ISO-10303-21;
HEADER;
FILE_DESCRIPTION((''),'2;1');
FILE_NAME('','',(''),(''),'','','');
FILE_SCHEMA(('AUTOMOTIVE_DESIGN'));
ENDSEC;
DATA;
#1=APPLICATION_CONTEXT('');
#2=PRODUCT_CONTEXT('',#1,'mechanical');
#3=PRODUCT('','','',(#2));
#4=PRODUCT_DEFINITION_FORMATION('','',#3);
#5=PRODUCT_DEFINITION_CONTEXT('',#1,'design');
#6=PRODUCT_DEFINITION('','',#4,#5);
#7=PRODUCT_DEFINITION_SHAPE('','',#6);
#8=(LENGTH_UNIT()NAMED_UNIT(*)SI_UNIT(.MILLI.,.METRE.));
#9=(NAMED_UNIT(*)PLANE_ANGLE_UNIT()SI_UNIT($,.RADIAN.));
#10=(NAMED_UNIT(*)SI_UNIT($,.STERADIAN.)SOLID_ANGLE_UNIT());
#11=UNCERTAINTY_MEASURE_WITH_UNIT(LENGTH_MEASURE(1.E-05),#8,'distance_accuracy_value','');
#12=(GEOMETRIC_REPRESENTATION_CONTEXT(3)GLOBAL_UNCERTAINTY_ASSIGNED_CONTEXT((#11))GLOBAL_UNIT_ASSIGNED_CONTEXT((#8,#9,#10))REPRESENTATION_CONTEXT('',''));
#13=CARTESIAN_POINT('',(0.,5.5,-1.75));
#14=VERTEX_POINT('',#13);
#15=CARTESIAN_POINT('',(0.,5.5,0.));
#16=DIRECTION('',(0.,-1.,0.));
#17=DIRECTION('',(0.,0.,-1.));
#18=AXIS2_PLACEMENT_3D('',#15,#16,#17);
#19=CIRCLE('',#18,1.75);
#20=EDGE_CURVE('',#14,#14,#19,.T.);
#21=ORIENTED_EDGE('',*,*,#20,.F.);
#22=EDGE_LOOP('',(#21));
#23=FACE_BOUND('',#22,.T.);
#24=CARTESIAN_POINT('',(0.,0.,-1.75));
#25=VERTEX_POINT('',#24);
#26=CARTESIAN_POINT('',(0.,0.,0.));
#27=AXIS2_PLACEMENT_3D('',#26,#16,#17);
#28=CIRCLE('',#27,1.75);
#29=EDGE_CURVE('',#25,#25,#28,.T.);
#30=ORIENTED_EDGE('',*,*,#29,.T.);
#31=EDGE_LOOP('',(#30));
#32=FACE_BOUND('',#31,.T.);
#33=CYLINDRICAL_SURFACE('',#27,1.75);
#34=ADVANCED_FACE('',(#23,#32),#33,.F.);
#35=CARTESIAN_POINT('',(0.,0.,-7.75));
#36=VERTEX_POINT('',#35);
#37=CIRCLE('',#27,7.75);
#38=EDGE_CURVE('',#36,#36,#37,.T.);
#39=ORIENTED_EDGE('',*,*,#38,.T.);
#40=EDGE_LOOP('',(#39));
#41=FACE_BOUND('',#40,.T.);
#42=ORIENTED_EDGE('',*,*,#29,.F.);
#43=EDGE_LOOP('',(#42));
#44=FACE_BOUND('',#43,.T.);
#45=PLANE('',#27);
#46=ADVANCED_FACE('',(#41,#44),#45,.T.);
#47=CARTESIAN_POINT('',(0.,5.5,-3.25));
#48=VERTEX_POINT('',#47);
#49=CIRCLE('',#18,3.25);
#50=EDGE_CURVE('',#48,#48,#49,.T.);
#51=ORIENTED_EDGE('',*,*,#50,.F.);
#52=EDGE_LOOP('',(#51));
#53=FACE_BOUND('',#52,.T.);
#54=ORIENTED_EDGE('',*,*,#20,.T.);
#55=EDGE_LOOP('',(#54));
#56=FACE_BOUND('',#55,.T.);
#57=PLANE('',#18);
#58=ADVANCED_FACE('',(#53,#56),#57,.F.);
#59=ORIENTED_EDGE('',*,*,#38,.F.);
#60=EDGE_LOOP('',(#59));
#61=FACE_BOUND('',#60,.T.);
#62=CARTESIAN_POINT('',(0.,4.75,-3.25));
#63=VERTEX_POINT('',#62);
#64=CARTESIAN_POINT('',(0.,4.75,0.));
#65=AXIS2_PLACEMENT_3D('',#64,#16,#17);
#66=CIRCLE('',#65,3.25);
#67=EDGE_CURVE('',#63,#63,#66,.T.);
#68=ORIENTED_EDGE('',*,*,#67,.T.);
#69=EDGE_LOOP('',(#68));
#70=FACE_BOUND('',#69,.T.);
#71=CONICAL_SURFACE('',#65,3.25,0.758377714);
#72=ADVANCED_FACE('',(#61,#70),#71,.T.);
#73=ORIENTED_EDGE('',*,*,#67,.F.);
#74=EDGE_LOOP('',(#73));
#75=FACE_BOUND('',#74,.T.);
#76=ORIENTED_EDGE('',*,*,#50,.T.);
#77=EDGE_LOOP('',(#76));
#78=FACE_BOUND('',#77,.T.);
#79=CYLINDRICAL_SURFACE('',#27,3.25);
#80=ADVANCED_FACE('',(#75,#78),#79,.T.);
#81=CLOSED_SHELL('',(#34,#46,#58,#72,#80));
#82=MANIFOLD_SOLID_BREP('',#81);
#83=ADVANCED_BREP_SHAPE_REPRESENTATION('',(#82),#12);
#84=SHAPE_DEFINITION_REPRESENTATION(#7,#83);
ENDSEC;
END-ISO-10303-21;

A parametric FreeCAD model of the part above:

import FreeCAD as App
import Part
import Sketcher

V = App.Vector


def add_polygon(sketch, points):
    """Adds a closed chain of lines whose ends are joined by coincident constraints."""
    first, n = sketch.GeometryCount, len(points)
    for a, b in zip(points, points[1:] + points[:1]):
        sketch.addGeometry(Part.LineSegment(App.Vector(*a, 0), App.Vector(*b, 0)), False)
    for i in range(n):
        sketch.addConstraint(Sketcher.Constraint("Coincident", first + i, 2, first + (i + 1) % n, 1))

doc = App.newDocument("Part")
body = doc.addObject("PartDesign::Body", "Body")

sketch1 = body.newObject("Sketcher::SketchObject", "Sketch")
sketch1.AttachmentSupport = (doc.getObject("XY_Plane"), [""])
sketch1.MapMode = "FlatFace"
add_polygon(sketch1, [(1.8, 5.5), (1.8, 0), (7.8, 0), (3.2, 4.8), (3.2, 5.5)])
sketch1.addConstraint([
    Sketcher.Constraint("Vertical", 0),
    Sketcher.Constraint("Horizontal", 1),
    Sketcher.Constraint("Vertical", 3),
    Sketcher.Constraint("Horizontal", 4),
    Sketcher.Constraint("PointOnObject", 0, 2, -1),
    Sketcher.Constraint("DistanceX", 1, 1, 1, 2, 6.0),
    Sketcher.Constraint("DistanceX", 4, 2, 4, 1, 1.5),
    Sketcher.Constraint("DistanceY", 0, 2, 0, 1, 5.5),
    Sketcher.Constraint("DistanceY", 3, 1, 3, 2, 0.75),
    Sketcher.Constraint("DistanceX", -1, 1, 0, 2, 1.75),
])
revolution = body.newObject("PartDesign::Revolution", "Revolution")
revolution.Profile = sketch1
revolution.ReferenceAxis = (sketch1, ["V_Axis"])
revolution.Angle = 360

doc.recompute()
